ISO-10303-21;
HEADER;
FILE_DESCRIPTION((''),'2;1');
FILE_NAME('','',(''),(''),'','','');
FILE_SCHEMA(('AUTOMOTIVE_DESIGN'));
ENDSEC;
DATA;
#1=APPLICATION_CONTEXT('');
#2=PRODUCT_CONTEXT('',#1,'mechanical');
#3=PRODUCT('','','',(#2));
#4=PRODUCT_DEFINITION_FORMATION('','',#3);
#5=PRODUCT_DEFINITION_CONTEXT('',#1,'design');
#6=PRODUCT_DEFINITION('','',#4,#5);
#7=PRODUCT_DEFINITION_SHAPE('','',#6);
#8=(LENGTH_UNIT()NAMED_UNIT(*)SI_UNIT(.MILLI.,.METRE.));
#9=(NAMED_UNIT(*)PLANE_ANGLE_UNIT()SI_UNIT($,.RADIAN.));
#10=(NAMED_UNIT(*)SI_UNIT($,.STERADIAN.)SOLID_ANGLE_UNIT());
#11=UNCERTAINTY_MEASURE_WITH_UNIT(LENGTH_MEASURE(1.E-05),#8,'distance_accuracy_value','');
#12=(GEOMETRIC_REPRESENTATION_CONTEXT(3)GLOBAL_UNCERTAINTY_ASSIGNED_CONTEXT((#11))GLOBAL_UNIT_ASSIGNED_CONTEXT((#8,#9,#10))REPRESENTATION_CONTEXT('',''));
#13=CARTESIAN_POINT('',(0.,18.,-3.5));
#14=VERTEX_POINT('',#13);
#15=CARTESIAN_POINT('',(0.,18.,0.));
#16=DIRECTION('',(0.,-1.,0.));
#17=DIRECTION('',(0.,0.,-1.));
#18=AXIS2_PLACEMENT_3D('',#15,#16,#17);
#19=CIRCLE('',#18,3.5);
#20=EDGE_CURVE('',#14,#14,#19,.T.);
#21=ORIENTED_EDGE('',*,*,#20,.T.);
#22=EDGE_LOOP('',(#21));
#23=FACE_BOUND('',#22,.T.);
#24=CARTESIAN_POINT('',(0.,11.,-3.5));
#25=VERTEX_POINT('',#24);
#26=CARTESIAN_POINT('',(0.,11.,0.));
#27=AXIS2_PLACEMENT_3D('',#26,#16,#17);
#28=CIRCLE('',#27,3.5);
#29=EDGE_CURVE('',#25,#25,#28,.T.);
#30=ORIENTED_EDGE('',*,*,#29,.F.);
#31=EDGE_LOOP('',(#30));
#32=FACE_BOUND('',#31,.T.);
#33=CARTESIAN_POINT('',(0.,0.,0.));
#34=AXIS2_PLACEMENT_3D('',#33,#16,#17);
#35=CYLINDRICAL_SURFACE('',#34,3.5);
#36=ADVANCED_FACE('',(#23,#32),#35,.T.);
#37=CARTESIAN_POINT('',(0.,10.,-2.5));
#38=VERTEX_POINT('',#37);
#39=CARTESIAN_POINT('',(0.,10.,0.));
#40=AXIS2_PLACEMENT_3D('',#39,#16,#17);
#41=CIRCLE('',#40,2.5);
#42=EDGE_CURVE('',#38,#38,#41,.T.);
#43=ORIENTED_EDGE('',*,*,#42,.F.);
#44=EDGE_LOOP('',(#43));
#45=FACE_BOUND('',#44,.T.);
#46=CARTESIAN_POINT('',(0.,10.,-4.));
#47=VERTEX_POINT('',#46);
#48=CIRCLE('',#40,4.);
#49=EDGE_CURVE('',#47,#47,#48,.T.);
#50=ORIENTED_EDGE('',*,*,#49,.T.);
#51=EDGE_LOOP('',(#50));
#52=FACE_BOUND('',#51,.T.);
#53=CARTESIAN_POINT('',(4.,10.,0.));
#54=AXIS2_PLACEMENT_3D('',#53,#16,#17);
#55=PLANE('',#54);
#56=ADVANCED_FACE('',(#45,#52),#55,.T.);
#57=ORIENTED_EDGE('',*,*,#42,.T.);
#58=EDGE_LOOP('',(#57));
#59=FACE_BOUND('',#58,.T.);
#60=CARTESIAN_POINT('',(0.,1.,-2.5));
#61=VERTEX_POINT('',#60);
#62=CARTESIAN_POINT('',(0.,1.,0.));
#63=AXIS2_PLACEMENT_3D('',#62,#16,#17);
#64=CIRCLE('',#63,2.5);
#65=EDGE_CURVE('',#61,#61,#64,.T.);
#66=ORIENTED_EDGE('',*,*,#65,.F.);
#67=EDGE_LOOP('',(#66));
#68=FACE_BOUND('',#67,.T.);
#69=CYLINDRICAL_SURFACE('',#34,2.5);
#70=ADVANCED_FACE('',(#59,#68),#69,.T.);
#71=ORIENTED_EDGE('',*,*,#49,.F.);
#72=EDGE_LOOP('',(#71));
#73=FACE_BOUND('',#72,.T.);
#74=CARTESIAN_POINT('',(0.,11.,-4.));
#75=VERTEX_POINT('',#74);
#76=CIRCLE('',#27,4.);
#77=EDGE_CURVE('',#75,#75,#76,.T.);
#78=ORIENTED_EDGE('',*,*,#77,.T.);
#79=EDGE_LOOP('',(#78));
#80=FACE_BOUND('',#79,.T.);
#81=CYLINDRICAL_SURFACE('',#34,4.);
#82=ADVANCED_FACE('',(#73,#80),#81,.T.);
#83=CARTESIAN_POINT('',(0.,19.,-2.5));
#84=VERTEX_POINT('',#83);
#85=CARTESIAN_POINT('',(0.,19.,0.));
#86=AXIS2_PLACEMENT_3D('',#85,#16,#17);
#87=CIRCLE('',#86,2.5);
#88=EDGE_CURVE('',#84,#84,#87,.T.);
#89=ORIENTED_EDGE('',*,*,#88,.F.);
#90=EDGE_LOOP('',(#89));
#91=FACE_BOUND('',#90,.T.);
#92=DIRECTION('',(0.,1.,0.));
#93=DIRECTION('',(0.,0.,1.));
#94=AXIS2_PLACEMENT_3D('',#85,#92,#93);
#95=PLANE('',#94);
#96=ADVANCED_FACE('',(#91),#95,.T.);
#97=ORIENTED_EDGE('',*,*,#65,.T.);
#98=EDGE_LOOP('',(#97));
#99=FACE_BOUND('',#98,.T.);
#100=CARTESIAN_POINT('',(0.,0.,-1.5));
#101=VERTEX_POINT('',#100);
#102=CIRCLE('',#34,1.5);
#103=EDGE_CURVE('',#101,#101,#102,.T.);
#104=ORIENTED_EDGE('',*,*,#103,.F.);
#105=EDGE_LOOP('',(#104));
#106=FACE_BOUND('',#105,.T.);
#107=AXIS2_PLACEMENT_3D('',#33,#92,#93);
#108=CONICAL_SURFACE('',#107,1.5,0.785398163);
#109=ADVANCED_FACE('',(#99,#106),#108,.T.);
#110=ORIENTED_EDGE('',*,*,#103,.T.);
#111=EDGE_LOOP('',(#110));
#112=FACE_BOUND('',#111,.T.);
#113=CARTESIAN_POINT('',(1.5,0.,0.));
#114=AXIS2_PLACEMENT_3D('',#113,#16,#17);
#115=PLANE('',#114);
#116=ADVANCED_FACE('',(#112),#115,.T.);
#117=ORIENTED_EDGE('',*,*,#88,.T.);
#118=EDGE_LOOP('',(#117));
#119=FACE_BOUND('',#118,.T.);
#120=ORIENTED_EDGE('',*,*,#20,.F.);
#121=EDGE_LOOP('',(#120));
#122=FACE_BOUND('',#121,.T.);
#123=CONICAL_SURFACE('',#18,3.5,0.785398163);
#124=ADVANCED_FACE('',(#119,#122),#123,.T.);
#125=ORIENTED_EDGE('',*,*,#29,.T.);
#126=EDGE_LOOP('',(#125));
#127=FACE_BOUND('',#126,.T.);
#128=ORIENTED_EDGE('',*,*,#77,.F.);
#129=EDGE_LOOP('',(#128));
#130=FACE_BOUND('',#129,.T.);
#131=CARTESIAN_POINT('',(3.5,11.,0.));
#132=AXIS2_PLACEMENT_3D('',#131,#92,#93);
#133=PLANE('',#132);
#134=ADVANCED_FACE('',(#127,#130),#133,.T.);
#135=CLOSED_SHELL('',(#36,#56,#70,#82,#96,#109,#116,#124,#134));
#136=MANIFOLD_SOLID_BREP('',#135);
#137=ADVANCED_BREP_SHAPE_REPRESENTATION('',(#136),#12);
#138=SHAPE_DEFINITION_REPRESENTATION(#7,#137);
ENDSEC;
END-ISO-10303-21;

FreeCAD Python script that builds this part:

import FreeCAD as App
import Part
import Sketcher

V = App.Vector
Q = App.Units.Quantity


def add_polygon(sketch, points):
    """Adds a closed chain of lines whose ends are joined by coincident constraints."""
    first, n = sketch.GeometryCount, len(points)
    for a, b in zip(points, points[1:] + points[:1]):
        sketch.addGeometry(Part.LineSegment(App.Vector(*a, 0), App.Vector(*b, 0)), False)
    for i in range(n):
        sketch.addConstraint(Sketcher.Constraint("Coincident", first + i, 2, first + (i + 1) % n, 1))

doc = App.newDocument("Part")
params = doc.addObject("Spreadsheet::Sheet", "Params")
for row, (alias, value) in enumerate([
    ("sketch1_height", "19 mm"),
    ("sketch1_height2", "9 mm"),
    ("sketch1_height3", "1 mm"),
    ("sketch1_height4", "7 mm"),
    ("sketch1_width", "1.5 mm"),
    ("revolution_angle", "360 deg"),
], start=1):
    params.set(f"A{row}", alias)
    params.set(f"B{row}", "=" + value)
    params.setAlias(f"B{row}", alias)

body = doc.addObject("PartDesign::Body", "Body")

# Sketch on XY plane
sketch1 = doc.addObject("Sketcher::SketchObject", "Sketch")
body.addObject(sketch1)
sketch1.AttachmentSupport = (doc.XY_Plane, [""])
sketch1.MapMode = "FlatFace"
add_polygon(sketch1, [(0, 19), (0, 0), (1.5, 0), (2.5, 1), (2.5, 10), (4, 10), (4, 11), (3.5, 11), (3.5, 18), (2.5, 19)])  # lines 0-9
sketch1.addConstraint(Sketcher.Constraint("Vertical", 0))
sketch1.addConstraint(Sketcher.Constraint("Horizontal", 1))
sketch1.addConstraint(Sketcher.Constraint("Vertical", 3))
sketch1.addConstraint(Sketcher.Constraint("Horizontal", 4))
sketch1.addConstraint(Sketcher.Constraint("Vertical", 5))
sketch1.addConstraint(Sketcher.Constraint("Horizontal", 6))
sketch1.addConstraint(Sketcher.Constraint("Vertical", 7))
sketch1.addConstraint(Sketcher.Constraint("Horizontal", 9))
sketch1.addConstraint(Sketcher.Constraint("Coincident", 0, 2, -1, 1))
sketch1.addConstraint(Sketcher.Constraint("Perpendicular", 2, 8))
sketch1.addConstraint(Sketcher.Constraint("Vertical", 3, 2, 8, 2))
sketch1.addConstraint(Sketcher.Constraint("Equal", 1, 4))
sketch1.addConstraint(Sketcher.Constraint("Equal", 2, 8))
sketch1.addConstraint(Sketcher.Constraint("DistanceY", 0, 2, 0, 1, Q("19 mm")))
sketch1.addConstraint(Sketcher.Constraint("DistanceY", 3, 1, 3, 2, Q("9 mm")))
sketch1.addConstraint(Sketcher.Constraint("DistanceY", 5, 1, 5, 2, Q("1 mm")))
sketch1.addConstraint(Sketcher.Constraint("DistanceY", 7, 1, 7, 2, Q("7 mm")))
sketch1.addConstraint(Sketcher.Constraint("Angle", 2, Q("45 deg")))
sketch1.addConstraint(Sketcher.Constraint("DistanceX", 1, 1, 1, 2, Q("1.5 mm")))
sketch1.setExpression("Constraints[23]", "Params.sketch1_height")
sketch1.setExpression("Constraints[24]", "Params.sketch1_height2")
sketch1.setExpression("Constraints[25]", "Params.sketch1_height3")
sketch1.setExpression("Constraints[26]", "Params.sketch1_height4")
sketch1.setExpression("Constraints[28]", "Params.sketch1_width")
revolution = doc.addObject("PartDesign::Revolution", "Revolution")
body.addObject(revolution)
revolution.Profile = sketch1
revolution.ReferenceAxis = (sketch1, ["V_Axis"])
revolution.setExpression("Angle", "Params.revolution_angle")

doc.recompute()
